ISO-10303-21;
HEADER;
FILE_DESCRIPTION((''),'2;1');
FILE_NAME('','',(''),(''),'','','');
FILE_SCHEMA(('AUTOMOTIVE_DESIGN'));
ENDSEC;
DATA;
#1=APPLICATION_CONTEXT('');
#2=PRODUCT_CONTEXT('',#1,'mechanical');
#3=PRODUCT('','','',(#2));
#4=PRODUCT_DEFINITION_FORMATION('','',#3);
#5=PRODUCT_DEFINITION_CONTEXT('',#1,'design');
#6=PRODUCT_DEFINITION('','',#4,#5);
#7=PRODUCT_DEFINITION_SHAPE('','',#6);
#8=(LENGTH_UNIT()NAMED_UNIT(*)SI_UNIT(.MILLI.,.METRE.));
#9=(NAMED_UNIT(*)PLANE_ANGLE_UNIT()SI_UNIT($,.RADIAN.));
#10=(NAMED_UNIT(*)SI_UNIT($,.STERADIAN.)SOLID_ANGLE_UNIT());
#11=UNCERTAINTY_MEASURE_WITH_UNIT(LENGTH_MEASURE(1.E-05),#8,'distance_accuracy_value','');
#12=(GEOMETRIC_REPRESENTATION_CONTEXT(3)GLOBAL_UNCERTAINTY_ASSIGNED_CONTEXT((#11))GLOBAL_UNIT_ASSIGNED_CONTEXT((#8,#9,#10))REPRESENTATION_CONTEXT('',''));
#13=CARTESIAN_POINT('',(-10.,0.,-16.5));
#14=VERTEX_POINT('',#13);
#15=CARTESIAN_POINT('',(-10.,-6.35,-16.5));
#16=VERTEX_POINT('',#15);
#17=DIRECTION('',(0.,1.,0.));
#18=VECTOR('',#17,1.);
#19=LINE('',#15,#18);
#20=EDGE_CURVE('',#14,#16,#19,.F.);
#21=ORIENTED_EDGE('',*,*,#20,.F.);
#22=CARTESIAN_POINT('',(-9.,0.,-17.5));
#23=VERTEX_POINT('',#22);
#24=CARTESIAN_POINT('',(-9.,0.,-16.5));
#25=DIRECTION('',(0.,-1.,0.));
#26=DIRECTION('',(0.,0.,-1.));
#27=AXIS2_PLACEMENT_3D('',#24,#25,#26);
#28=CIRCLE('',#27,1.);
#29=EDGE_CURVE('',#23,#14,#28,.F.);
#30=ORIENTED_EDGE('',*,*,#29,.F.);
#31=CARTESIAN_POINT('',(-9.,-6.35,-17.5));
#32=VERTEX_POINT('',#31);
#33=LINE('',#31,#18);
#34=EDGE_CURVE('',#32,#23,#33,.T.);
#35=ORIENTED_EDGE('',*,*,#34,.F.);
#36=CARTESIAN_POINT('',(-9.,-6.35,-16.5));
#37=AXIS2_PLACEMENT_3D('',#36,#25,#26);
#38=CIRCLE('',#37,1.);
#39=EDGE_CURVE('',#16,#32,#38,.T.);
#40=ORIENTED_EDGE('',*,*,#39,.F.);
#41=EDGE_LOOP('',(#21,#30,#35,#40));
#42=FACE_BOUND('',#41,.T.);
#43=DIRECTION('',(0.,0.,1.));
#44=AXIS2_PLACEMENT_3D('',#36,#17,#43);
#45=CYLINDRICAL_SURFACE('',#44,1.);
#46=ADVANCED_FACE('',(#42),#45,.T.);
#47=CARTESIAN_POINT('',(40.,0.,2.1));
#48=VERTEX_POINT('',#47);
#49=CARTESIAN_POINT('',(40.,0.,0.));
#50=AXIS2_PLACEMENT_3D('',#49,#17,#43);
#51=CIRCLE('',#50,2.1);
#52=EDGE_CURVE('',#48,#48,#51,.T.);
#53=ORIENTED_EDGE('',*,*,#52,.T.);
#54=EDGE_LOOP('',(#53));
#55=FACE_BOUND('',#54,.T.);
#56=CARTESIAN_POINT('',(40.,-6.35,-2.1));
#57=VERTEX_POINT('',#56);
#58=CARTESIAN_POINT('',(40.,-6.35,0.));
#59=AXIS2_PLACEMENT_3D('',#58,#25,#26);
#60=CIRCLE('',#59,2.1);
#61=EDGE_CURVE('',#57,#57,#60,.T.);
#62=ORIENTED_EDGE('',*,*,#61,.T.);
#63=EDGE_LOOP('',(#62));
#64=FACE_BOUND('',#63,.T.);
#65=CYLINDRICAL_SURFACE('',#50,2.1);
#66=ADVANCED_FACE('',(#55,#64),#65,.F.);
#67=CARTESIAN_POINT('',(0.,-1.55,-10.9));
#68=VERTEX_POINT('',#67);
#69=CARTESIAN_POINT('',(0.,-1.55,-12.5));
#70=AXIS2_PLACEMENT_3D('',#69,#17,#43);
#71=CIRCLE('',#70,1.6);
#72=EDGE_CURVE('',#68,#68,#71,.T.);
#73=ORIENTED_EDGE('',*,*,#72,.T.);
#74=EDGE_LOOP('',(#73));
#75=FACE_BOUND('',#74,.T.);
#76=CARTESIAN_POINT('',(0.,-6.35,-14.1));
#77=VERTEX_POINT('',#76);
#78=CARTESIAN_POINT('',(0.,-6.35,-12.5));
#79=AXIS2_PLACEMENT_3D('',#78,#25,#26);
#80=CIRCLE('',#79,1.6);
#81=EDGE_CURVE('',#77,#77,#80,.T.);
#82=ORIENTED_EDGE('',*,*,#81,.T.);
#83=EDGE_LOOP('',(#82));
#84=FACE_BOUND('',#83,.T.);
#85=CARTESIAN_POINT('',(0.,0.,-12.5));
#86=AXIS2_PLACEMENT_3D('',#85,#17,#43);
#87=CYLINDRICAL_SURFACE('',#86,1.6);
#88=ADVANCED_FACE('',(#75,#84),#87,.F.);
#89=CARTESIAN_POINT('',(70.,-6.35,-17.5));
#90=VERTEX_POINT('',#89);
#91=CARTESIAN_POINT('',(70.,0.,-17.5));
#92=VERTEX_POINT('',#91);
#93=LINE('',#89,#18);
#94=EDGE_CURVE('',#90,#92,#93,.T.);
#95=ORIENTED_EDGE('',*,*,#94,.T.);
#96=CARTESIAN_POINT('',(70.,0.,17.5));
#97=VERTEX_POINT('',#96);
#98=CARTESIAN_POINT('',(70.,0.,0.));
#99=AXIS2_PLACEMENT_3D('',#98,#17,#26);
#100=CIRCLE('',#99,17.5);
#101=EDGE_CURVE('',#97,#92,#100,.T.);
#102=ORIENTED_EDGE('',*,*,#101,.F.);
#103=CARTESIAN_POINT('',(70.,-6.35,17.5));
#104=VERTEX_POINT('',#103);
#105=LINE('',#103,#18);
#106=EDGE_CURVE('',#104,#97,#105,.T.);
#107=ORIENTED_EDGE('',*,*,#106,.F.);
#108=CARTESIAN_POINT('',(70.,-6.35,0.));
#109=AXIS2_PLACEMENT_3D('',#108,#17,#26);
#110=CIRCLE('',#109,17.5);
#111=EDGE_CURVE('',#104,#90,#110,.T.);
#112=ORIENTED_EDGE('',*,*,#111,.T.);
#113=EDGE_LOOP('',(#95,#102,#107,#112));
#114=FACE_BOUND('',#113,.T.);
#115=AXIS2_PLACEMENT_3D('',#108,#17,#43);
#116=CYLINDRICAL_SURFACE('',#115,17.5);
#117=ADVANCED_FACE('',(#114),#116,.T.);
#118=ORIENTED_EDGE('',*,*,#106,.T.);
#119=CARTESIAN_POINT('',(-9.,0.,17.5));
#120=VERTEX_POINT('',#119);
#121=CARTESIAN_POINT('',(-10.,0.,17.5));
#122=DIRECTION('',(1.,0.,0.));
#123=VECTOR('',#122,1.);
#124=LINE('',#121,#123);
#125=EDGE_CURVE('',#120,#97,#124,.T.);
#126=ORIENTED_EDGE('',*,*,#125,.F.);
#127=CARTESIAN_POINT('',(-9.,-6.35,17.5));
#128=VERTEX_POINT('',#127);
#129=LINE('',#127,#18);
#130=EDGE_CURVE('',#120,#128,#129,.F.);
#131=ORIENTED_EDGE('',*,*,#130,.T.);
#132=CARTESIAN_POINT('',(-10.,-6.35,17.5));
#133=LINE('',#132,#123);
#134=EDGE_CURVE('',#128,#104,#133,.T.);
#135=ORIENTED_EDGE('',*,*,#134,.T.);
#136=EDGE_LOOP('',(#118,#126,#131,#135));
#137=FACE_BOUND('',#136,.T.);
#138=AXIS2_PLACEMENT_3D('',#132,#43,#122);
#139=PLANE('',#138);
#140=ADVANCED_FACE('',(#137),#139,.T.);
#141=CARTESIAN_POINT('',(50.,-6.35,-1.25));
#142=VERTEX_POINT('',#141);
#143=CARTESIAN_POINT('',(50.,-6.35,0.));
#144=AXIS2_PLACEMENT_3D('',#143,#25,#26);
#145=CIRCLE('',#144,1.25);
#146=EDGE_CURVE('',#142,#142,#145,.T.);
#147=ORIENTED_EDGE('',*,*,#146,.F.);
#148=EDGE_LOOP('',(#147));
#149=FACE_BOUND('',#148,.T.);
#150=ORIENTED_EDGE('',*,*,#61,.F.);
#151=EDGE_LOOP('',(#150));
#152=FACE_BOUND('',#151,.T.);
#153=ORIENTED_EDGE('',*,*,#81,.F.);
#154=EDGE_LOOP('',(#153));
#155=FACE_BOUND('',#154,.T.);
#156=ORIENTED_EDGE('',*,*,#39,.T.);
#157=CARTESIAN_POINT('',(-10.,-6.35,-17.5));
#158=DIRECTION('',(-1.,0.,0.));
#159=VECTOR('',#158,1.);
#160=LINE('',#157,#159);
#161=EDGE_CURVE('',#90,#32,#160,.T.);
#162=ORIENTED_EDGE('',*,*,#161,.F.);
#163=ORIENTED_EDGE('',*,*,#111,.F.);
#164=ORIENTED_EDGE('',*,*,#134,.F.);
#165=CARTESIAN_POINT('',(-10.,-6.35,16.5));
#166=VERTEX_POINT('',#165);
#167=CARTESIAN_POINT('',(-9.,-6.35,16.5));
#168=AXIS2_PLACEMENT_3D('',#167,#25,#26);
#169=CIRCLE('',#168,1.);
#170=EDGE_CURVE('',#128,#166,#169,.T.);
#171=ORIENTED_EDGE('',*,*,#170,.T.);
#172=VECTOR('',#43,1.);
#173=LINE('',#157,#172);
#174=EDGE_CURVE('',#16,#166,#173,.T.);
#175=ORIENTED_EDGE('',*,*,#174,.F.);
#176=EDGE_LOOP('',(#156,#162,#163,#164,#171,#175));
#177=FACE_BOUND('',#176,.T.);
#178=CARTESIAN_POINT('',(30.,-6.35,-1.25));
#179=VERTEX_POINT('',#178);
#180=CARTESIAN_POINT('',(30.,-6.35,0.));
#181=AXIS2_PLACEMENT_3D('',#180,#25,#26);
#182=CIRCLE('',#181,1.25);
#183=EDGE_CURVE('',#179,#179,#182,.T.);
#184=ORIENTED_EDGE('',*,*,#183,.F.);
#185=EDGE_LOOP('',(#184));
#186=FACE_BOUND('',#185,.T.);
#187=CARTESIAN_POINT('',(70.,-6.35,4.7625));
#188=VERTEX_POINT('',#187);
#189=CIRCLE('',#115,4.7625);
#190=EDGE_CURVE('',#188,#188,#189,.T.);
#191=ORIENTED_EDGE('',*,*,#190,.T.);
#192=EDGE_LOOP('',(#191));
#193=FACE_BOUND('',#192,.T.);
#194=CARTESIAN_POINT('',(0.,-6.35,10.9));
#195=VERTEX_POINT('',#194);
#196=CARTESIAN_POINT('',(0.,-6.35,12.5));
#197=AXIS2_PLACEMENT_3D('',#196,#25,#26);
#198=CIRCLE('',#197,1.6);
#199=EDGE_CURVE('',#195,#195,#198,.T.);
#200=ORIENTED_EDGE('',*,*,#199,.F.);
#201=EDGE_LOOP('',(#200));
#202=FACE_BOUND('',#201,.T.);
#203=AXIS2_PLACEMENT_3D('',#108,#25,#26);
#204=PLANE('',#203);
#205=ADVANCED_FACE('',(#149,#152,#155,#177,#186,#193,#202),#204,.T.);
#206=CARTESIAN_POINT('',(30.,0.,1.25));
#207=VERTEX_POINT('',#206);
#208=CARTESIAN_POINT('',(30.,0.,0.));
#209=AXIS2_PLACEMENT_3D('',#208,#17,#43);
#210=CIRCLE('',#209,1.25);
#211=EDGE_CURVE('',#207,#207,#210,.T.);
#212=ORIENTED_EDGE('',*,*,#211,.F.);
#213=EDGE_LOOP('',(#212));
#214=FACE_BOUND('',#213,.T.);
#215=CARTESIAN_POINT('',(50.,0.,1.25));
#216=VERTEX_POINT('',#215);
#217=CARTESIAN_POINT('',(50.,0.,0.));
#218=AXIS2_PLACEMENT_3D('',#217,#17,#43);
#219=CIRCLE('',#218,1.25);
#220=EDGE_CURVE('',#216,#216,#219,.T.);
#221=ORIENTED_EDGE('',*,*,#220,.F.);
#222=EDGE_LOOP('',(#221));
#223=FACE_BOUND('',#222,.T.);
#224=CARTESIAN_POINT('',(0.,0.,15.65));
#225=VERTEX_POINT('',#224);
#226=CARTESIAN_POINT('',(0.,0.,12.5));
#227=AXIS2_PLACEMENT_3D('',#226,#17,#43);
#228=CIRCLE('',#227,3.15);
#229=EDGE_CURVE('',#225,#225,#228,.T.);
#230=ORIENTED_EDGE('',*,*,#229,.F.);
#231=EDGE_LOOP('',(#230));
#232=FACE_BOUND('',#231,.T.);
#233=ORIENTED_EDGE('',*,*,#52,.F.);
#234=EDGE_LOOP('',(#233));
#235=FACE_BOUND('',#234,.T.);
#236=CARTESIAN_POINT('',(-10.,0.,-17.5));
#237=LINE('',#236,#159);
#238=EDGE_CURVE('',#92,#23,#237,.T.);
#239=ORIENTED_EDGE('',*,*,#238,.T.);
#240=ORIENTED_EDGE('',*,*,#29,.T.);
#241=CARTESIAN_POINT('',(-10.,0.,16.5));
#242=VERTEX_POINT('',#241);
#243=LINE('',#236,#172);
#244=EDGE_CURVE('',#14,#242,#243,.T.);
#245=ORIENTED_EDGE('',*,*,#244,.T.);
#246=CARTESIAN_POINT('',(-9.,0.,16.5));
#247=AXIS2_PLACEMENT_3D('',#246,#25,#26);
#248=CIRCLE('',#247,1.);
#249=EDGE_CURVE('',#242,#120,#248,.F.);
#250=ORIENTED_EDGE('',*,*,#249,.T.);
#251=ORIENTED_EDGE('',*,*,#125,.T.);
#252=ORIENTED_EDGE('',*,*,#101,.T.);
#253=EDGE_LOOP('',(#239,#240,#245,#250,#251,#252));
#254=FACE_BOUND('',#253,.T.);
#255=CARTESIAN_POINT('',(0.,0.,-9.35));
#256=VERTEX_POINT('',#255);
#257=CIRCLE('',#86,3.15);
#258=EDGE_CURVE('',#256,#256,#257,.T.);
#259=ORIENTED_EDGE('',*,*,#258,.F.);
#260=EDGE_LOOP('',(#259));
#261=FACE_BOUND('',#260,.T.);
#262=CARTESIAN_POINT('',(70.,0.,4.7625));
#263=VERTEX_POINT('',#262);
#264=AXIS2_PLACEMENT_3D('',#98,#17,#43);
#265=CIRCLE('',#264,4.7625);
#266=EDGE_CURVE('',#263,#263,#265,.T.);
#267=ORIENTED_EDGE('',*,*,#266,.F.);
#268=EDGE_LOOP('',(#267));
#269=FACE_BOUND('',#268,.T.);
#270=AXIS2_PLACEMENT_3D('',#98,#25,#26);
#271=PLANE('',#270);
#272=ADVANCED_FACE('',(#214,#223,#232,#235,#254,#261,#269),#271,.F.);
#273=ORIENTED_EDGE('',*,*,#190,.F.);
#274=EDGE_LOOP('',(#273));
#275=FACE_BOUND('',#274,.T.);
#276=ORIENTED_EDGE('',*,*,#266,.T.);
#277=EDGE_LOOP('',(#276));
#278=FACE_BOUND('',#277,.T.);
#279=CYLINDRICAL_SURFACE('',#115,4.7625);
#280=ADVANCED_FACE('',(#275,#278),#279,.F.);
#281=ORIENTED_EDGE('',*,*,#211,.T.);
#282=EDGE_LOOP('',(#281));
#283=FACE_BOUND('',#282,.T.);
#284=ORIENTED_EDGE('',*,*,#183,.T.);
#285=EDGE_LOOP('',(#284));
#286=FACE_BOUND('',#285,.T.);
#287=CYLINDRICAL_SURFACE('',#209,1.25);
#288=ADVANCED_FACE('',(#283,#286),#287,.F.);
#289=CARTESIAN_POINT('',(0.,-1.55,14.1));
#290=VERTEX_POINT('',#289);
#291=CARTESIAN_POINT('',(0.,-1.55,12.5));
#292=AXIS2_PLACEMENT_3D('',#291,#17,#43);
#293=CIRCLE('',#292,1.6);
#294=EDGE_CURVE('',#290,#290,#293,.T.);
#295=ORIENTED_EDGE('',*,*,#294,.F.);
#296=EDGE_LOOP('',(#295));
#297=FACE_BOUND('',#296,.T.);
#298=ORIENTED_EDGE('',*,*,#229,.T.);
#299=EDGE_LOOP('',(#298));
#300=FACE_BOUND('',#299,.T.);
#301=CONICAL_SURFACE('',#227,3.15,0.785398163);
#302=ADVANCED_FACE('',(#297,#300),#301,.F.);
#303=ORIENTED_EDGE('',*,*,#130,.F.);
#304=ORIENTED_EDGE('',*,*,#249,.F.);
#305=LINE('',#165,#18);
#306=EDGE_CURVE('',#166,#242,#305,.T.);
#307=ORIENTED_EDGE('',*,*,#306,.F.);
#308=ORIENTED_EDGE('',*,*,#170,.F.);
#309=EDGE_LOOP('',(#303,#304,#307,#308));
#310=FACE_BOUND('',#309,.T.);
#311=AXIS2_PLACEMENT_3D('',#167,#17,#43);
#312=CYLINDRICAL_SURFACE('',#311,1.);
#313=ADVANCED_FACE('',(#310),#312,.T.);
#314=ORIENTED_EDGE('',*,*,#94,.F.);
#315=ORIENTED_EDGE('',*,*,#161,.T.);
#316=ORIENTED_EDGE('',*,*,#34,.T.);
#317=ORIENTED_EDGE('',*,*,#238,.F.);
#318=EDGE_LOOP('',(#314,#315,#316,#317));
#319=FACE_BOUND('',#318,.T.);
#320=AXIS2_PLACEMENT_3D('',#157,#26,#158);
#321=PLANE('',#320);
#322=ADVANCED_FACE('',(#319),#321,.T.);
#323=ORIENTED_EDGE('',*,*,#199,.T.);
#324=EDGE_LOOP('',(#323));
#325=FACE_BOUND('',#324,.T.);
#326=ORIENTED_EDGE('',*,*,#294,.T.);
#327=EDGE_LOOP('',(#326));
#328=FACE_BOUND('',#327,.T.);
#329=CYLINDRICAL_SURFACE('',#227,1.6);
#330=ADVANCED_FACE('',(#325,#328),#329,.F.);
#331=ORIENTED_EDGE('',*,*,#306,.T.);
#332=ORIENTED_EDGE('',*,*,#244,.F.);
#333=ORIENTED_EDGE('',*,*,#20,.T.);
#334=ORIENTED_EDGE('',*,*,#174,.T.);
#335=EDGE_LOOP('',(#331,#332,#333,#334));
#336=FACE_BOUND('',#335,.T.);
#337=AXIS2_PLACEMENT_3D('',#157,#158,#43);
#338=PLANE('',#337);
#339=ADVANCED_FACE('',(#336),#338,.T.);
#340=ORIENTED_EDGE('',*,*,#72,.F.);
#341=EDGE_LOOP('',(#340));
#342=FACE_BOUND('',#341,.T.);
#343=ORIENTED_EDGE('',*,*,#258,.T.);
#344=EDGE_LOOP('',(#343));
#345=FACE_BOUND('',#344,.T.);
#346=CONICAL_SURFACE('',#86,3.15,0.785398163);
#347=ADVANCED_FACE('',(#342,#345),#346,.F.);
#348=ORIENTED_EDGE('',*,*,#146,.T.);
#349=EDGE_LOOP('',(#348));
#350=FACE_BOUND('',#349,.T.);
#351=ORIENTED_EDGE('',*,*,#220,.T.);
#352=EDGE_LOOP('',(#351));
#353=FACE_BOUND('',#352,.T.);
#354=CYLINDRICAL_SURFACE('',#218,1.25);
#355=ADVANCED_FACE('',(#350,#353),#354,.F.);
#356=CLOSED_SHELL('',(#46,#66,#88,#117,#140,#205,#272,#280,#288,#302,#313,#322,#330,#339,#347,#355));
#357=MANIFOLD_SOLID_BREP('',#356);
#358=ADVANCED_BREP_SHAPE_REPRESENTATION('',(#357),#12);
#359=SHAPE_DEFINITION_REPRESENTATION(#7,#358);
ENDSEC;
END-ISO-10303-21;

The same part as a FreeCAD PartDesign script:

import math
import FreeCAD as App
import Part
import Sketcher
Q = App.Units.Quantity


def edges_at(feature, points):
    """Names of the edges that pass closest to the given points."""
    edges = feature.Shape.Edges
    near = lambda p: min(range(len(edges)), key=lambda i: edges[i].distToShape(Part.Vertex(*p))[0])
    return sorted({f"Edge{near(p) + 1}" for p in points})

doc = App.newDocument("Part")
body = doc.addObject("PartDesign::Body", "Body")

# Sketch on XZ plane
sketch1 = body.newObject("Sketcher::SketchObject", "Sketch")
sketch1.AttachmentSupport = (doc.getObject("XZ_Plane"), [""])
sketch1.MapMode = "FlatFace"
sketch1.addGeometry([
    Part.LineSegment(App.Vector(70, -17.5, 0), App.Vector(-10, -17.5, 0)),  # 0
    Part.LineSegment(App.Vector(-10, -17.5, 0), App.Vector(-10, 17.5, 0)),  # 1
    Part.LineSegment(App.Vector(-10, 17.5, 0), App.Vector(70, 17.5, 0)),  # 2
    Part.ArcOfCircle(Part.Circle(App.Vector(70, 0, 0), App.Vector(0, 0, 1), 17.5), math.radians(-90), math.radians(90)),  # 3
    Part.Circle(App.Vector(70, 0, 0), App.Vector(0, 0, 1), 4.8),  # 4
], False)
sketch1.addConstraint([
    Sketcher.Constraint("Coincident", 0, 2, 1, 1),
    Sketcher.Constraint("Coincident", 1, 2, 2, 1),
    Sketcher.Constraint("Tangent", 2, 2, 3, 2),
    Sketcher.Constraint("Tangent", 3, 1, 0, 1),
    Sketcher.Constraint("Horizontal", 0),
    Sketcher.Constraint("Vertical", 1),
    Sketcher.Constraint("Horizontal", 2),
    Sketcher.Constraint("Coincident", 4, 3, 3, 3),
    Sketcher.Constraint("PointOnObject", 3, 3, -1),
    Sketcher.Constraint("Radius", 3, Q("17.5 mm")),
    Sketcher.Constraint("DistanceX", 0, 2, 0, 1, Q("80 mm")),
    Sketcher.Constraint("Diameter", 4, Q("9.525 mm")),
    Sketcher.Constraint("DistanceX", -1, 1, 3, 3, Q("70 mm")),
])
pad1 = body.newObject("PartDesign::Pad", "Pad")
pad1.Profile = sketch1
pad1.Length = 6.35

# Sketch on XZ plane
sketch2 = body.newObject("Sketcher::SketchObject", "Sketch001")
sketch2.AttachmentSupport = (doc.getObject("XZ_Plane"), [""])
sketch2.MapMode = "FlatFace"
sketch2.addGeometry([
    Part.Circle(App.Vector(0, -12.5, 0), App.Vector(0, 0, 1), 1.6),
    Part.Circle(App.Vector(0, 12.5, 0), App.Vector(0, 0, 1), 1.6),
], False)
sketch2.addConstraint([
    Sketcher.Constraint("Equal", 0, 1),
    Sketcher.Constraint("Symmetric", 0, 3, 1, 3, -1, 1),
    Sketcher.Constraint("PointOnObject", 0, 3, -2),
    Sketcher.Constraint("Diameter", 0, Q("3.2 mm")),
    Sketcher.Constraint("DistanceY", 0, 3, 1, 3, Q("25 mm")),
])
doc.recompute()
hole = body.newObject("PartDesign::Hole", "Hole")
hole.Profile = sketch2
hole.ThreadType = "None"
hole.Diameter = 3.2
hole.DepthType = "ThroughAll"
hole.HoleCutType = "Countersink"
hole.HoleCutDiameter = 6.3
hole.HoleCutCountersinkAngle = 90
hole.Reversed = True

# Sketch on XZ plane
sketch3 = body.newObject("Sketcher::SketchObject", "Sketch002")
sketch3.AttachmentSupport = (doc.getObject("XZ_Plane"), [""])
sketch3.MapMode = "FlatFace"
sketch3.addGeometry([
    Part.Circle(App.Vector(30, 0, 0), App.Vector(0, 0, 1), 1.2),
    Part.Circle(App.Vector(50, 0, 0), App.Vector(0, 0, 1), 1.2),
], False)
sketch3.addConstraint([
    Sketcher.Constraint("Equal", 0, 1),
    Sketcher.Constraint("PointOnObject", 0, 3, -1),
    Sketcher.Constraint("PointOnObject", 1, 3, -1),
    Sketcher.Constraint("Diameter", 0, Q("2.5 mm")),
    Sketcher.Constraint("DistanceX", -1, 1, 0, 3, Q("30 mm")),
    Sketcher.Constraint("DistanceX", -1, 1, 1, 3, Q("50 mm")),
])
doc.recompute()
hole2 = body.newObject("PartDesign::Hole", "Hole001")
hole2.Profile = sketch3
hole2.ThreadType = "None"
hole2.Diameter = 2.5
hole2.DepthType = "ThroughAll"
hole2.Reversed = True
doc.recompute()

fillet = body.newObject("PartDesign::Fillet", "Fillet")
fillet.Base = (hole2, edges_at(hole2, [(-10, -3.175, 17.5), (-10, -3.175, -17.5)]))
fillet.Radius = 1

# Sketch on XZ plane
sketch4 = body.newObject("Sketcher::SketchObject", "Sketch003")
sketch4.AttachmentSupport = (doc.getObject("XZ_Plane"), [""])
sketch4.MapMode = "FlatFace"
sketch4.addGeometry(Part.Circle(App.Vector(40, 0, 0), App.Vector(0, 0, 1), 2.1), False)
sketch4.addConstraint([
    Sketcher.Constraint("PointOnObject", 0, 3, -1),
    Sketcher.Constraint("Diameter", 0, Q("4.2 mm")),
    Sketcher.Constraint("DistanceX", -1, 1, 0, 3, Q("40 mm")),
])
doc.recompute()
hole3 = body.newObject("PartDesign::Hole", "Hole002")
hole3.Profile = sketch4
hole3.ThreadType = "None"
hole3.Diameter = 4.2
hole3.DepthType = "ThroughAll"
hole3.Reversed = True

doc.recompute()
